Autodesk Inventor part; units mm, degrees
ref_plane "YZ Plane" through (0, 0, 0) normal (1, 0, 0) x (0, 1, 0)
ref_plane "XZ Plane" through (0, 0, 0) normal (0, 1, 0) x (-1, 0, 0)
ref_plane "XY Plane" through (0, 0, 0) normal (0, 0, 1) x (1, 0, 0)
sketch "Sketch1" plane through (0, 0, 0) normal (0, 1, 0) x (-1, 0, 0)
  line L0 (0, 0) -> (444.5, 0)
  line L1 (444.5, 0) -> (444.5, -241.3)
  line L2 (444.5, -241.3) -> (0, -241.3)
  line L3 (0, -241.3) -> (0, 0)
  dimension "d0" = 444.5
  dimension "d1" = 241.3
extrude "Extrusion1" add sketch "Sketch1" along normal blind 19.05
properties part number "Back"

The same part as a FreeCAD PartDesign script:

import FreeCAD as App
import Part
import Sketcher

V = App.Vector
Q = App.Units.Quantity

doc = App.newDocument("Part")
body = doc.addObject("PartDesign::Body", "Body")

sketch1 = body.newObject("Sketcher::SketchObject", "Sketch")
sketch1.AttachmentSupport = (doc.getObject("XZ_Plane"), [""])
sketch1.MapMode = "FlatFace"
sketch1.addGeometry([
    Part.LineSegment(V(-444, 0, 0), V(0, 0, 0)),
    Part.LineSegment(V(0, 0, 0), V(0, -241, 0)),
    Part.LineSegment(V(0, -241, 0), V(-444, -241, 0)),
    Part.LineSegment(V(-444, -241, 0), V(-444, 0, 0)),
], False)
sketch1.addConstraint([
    Sketcher.Constraint("Coincident", 0, 2, 1, 1),
    Sketcher.Constraint("Coincident", 1, 2, 2, 1),
    Sketcher.Constraint("Coincident", 2, 2, 3, 1),
    Sketcher.Constraint("Coincident", 3, 2, 0, 1),
    Sketcher.Constraint("Horizontal", 0),
    Sketcher.Constraint("Vertical", 1),
    Sketcher.Constraint("Horizontal", 2),
    Sketcher.Constraint("Vertical", 3),
    Sketcher.Constraint("Coincident", 0, 2, -1, 1),
    Sketcher.Constraint("DistanceX", 0, 1, 0, 2, Q("17.5 in")),
    Sketcher.Constraint("DistanceY", 1, 2, 1, 1, Q("9.5 in")),
])
pad1 = body.newObject("PartDesign::Pad", "Pad")
pad1.Profile = sketch1
pad1.Length = Q("0.75 in")
pad1.Reversed = True

doc.recompute()
